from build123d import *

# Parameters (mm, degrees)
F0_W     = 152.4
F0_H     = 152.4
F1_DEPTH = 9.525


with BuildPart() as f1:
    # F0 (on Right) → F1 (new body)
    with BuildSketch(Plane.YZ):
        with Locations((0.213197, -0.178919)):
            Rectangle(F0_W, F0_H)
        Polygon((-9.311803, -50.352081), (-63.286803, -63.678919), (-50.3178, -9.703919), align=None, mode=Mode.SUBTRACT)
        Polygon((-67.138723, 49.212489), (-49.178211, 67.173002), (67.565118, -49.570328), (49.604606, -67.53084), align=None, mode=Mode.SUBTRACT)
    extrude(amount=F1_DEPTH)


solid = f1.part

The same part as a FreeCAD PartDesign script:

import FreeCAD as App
import Part
import Sketcher

V = App.Vector
Q = App.Units.Quantity

doc = App.newDocument("Part")
body = doc.addObject("PartDesign::Body", "Body")

sketch1 = body.newObject("Sketcher::SketchObject", "Sketch")
sketch1.AttachmentSupport = (doc.getObject("YZ_Plane"), [""])
sketch1.MapMode = "FlatFace"
sketch1.addGeometry([
    Part.LineSegment(V(-76, 76, 0), V(-76, -76, 0)),
    Part.LineSegment(V(-76, -76, 0), V(76, -76, 0)),
    Part.LineSegment(V(76, -76, 0), V(76, 76, 0)),
    Part.LineSegment(V(76, 76, 0), V(-76, 76, 0)),
    Part.LineSegment(V(-50, -10, 0), V(-9, -50, 0)),
    Part.LineSegment(V(-9, -50, 0), V(-63, -64, 0)),
    Part.LineSegment(V(-63, -64, 0), V(-50, -10, 0)),
    Part.LineSegment(V(50, -68, 0), V(-67, 49, 0)),
    Part.LineSegment(V(-67, 49, 0), V(-49, 67, 0)),
    Part.LineSegment(V(-49, 67, 0), V(68, -50, 0)),
    Part.LineSegment(V(68, -50, 0), V(50, -68, 0)),
], False)
sketch1.addConstraint([
    Sketcher.Constraint("Coincident", 0, 2, 1, 1),
    Sketcher.Constraint("Coincident", 1, 2, 2, 1),
    Sketcher.Constraint("Coincident", 2, 2, 3, 1),
    Sketcher.Constraint("Coincident", 3, 2, 0, 1),
    Sketcher.Constraint("Coincident", 4, 2, 5, 1),
    Sketcher.Constraint("Coincident", 5, 2, 6, 1),
    Sketcher.Constraint("Coincident", 6, 2, 4, 1),
    Sketcher.Constraint("Coincident", 7, 2, 8, 1),
    Sketcher.Constraint("Coincident", 8, 2, 9, 1),
    Sketcher.Constraint("Coincident", 9, 2, 10, 1),
    Sketcher.Constraint("Coincident", 10, 2, 7, 1),
    Sketcher.Constraint("Vertical", 0),
    Sketcher.Constraint("Horizontal", 1),
    Sketcher.Constraint("Vertical", 2),
    Sketcher.Constraint("Horizontal", 3),
    Sketcher.Constraint("Perpendicular", 7, 8),
    Sketcher.Constraint("Perpendicular", 8, 9),
    Sketcher.Constraint("Perpendicular", 9, 10),
    Sketcher.Constraint("Equal", 3, 0),
    Sketcher.Constraint("DistanceX", 1, 1, 1, 2, Q("6 in")),
    Sketcher.Constraint("Distance", 8, Q("1 in")),
    Sketcher.Constraint("Angle", 7, Q("135 deg")),
    Sketcher.Constraint("Distance", 7, Q("6.5 in")),
    Sketcher.Constraint("DistanceX", 0, 2, 5, 2, Q("0.5 in")),
    Sketcher.Constraint("DistanceY", 0, 2, 5, 2, Q("0.5 in")),
    Sketcher.Constraint("DistanceX", 0, 2, 4, 2, Q("2.625 in")),
    Sketcher.Constraint("DistanceY", 5, 2, 6, 2, Q("2.125 in")),
    Sketcher.Constraint("DistanceX", 6, 2, -1, 1, 50.3178),
    Sketcher.Constraint("DistanceY", -1, 1, 8, 2, 67.173002),
    Sketcher.Constraint("Distance", 5, 55.59591),
    Sketcher.Constraint("Distance", 6, 55.511221),
    Sketcher.Constraint("DistanceY", 0, 2, -1, 1, 76.378919),
    Sketcher.Constraint("DistanceX", 8, 2, -1, 1, 49.178211),
])
pad1 = body.newObject("PartDesign::Pad", "Pad")
pad1.Profile = sketch1
pad1.Length = Q("0.375 in")

doc.recompute()
